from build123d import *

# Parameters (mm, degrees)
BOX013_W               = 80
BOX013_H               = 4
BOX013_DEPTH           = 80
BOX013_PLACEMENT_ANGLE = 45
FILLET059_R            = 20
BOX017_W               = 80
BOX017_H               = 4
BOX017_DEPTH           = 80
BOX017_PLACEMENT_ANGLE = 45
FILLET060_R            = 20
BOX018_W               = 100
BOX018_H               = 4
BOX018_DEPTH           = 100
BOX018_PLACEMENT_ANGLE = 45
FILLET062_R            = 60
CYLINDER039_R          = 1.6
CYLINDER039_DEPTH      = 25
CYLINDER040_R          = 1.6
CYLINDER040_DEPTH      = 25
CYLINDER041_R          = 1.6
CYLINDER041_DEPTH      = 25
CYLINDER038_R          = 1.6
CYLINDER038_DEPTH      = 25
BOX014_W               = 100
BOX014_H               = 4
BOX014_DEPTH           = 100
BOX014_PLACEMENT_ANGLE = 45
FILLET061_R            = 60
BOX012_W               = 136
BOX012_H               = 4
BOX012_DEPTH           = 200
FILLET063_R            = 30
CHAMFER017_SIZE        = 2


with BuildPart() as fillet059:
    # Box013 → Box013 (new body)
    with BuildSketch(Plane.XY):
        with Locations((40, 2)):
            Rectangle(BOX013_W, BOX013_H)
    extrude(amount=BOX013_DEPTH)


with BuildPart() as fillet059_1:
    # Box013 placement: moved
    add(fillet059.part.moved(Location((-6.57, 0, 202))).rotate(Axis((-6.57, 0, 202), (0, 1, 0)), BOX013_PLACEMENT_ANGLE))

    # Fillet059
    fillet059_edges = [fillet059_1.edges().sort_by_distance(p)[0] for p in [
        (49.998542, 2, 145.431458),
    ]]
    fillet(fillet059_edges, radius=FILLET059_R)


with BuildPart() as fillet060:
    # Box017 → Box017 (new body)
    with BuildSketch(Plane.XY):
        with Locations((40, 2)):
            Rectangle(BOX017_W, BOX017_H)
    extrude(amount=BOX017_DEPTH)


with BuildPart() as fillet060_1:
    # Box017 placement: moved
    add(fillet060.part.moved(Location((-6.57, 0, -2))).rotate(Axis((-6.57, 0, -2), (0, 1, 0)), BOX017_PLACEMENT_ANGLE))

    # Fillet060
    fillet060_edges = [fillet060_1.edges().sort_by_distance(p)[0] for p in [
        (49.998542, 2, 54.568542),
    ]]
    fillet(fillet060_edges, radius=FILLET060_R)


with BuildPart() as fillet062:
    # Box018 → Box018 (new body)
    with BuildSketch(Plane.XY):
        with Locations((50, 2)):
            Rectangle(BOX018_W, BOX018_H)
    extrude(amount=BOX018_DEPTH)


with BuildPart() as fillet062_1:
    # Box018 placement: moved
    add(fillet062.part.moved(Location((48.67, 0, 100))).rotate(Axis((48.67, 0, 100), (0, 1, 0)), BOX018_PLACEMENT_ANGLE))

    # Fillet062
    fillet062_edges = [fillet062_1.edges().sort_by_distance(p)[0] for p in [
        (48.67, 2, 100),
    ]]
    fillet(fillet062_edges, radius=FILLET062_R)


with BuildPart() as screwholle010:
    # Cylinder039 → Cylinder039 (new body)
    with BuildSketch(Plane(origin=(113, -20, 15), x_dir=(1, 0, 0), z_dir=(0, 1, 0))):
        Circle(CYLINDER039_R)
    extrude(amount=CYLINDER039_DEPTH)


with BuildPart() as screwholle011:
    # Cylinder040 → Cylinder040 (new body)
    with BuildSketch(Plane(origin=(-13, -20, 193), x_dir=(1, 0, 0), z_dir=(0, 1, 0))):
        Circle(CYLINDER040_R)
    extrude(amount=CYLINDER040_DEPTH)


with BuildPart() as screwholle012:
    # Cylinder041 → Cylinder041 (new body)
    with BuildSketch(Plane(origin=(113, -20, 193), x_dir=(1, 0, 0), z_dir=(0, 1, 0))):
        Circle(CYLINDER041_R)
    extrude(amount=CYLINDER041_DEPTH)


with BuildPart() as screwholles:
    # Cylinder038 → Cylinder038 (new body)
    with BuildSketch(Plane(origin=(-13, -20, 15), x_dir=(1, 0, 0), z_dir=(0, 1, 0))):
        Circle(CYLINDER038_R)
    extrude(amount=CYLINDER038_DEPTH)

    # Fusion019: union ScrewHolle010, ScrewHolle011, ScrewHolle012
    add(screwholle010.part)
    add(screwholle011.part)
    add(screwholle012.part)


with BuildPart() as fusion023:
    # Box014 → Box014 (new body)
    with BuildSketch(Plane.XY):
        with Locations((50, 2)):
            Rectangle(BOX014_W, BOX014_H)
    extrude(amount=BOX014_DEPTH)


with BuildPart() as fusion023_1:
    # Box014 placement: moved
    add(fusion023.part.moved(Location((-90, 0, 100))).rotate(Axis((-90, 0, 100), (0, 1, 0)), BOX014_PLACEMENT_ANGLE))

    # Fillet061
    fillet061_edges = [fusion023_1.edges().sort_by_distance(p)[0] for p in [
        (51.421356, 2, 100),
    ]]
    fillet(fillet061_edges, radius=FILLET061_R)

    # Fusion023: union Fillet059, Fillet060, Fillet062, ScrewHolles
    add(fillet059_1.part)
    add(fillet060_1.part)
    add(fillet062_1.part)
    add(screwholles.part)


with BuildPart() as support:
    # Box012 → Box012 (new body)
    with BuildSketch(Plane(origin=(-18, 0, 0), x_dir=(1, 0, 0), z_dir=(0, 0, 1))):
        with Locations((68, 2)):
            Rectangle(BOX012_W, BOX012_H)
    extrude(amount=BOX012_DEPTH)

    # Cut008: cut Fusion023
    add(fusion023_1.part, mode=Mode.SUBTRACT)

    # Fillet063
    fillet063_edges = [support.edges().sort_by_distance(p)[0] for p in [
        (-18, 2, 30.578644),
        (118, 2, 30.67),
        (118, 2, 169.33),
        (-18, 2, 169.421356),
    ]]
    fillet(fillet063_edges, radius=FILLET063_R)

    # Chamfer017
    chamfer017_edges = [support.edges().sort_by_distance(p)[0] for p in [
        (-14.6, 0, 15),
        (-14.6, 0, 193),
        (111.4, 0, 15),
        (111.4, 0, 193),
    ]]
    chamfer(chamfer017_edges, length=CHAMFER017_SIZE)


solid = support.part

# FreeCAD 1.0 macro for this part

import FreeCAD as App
import Part
import Sketcher

V = App.Vector
Q = App.Units.Quantity


def edges_at(feature, points):
    """Names of the edges that pass closest to the given points."""
    edges = feature.Shape.Edges
    near = lambda p: min(range(len(edges)), key=lambda i: edges[i].distToShape(Part.Vertex(*p))[0])
    return sorted({f"Edge{near(p) + 1}" for p in points})


def add_polygon(sketch, points):
    """Adds a closed chain of lines whose ends are joined by coincident constraints."""
    first, n = sketch.GeometryCount, len(points)
    for a, b in zip(points, points[1:] + points[:1]):
        sketch.addGeometry(Part.LineSegment(App.Vector(*a, 0), App.Vector(*b, 0)), False)
    for i in range(n):
        sketch.addConstraint(Sketcher.Constraint("Coincident", first + i, 2, first + (i + 1) % n, 1))

doc = App.newDocument("Part")
params = doc.addObject("Spreadsheet::Sheet", "Params")
for row, (alias, value) in enumerate([
    ("sketch1_width", "80 mm"),
    ("sketch1_height", "4 mm"),
    ("pad1_length", "80 mm"),
    ("fillet_radius", "20 mm"),
    ("sketch2_width", "80 mm"),
    ("sketch2_height", "4 mm"),
    ("pad2_length", "80 mm"),
    ("fillet2_radius", "20 mm"),
    ("sketch3_width", "100 mm"),
    ("sketch3_height", "4 mm"),
    ("pad3_length", "100 mm"),
    ("fillet3_radius", "60 mm"),
    ("sketch4_diameter", "3.2 mm"),
    ("pad4_length", "25 mm"),
    ("sketch5_diameter", "3.2 mm"),
    ("pad5_length", "25 mm"),
    ("sketch6_diameter", "3.2 mm"),
    ("pad6_length", "25 mm"),
    ("sketch7_diameter", "3.2 mm"),
    ("pad7_length", "25 mm"),
    ("sketch8_width", "100 mm"),
    ("sketch8_height", "4 mm"),
    ("pad8_length", "100 mm"),
    ("fillet4_radius", "60 mm"),
    ("sketch9_width", "136 mm"),
    ("sketch9_height", "4 mm"),
    ("pad9_length", "200 mm"),
    ("fillet5_radius", "30 mm"),
    ("chamfer_size", "2 mm"),
], start=1):
    params.set(f"A{row}", alias)
    params.set(f"B{row}", "=" + value)
    params.setAlias(f"B{row}", alias)

body = doc.addObject("PartDesign::Body", "Body")

# Sketch on XY plane
sketch1 = doc.addObject("Sketcher::SketchObject", "Sketch")
body.addObject(sketch1)
sketch1.AttachmentSupport = (doc.XY_Plane, [""])
sketch1.MapMode = "FlatFace"
add_polygon(sketch1, [(0, 4), (0, 0), (80, 0), (80, 4)])  # lines 0-3
sketch1.addConstraint(Sketcher.Constraint("Vertical", 0))
sketch1.addConstraint(Sketcher.Constraint("Horizontal", 1))
sketch1.addConstraint(Sketcher.Constraint("Vertical", 2))
sketch1.addConstraint(Sketcher.Constraint("Horizontal", 3))
sketch1.addConstraint(Sketcher.Constraint("Coincident", 0, 2, -1, 1))
sketch1.addConstraint(Sketcher.Constraint("DistanceX", 1, 1, 1, 2, Q("80 mm")))
sketch1.addConstraint(Sketcher.Constraint("DistanceY", 0, 2, 0, 1, Q("4 mm")))
sketch1.setExpression("Constraints[9]", "Params.sketch1_width")
sketch1.setExpression("Constraints[10]", "Params.sketch1_height")
pad1 = doc.addObject("PartDesign::Pad", "Pad")
body.addObject(pad1)
pad1.Profile = sketch1
pad1.setExpression("Length", "Params.pad1_length")
body2 = doc.addObject("PartDesign::Body", "Body001")
doc.recompute()

body.Placement = App.Placement(V(-6.57, 0, 202), App.Rotation(V(0, 1, 0), 45))
boolean = doc.addObject("PartDesign::Boolean", "Boolean")
body2.addObject(boolean)
boolean.Type = "Fuse"
boolean.addObjects([body])
doc.recompute()

fillet = doc.addObject("PartDesign::Fillet", "Fillet")
body2.addObject(fillet)
fillet.Base = (boolean, edges_at(boolean, [(49.999, 2, 145.431)]))
fillet.setExpression("Radius", "Params.fillet_radius")
body3 = doc.addObject("PartDesign::Body", "Body002")

# Sketch on XY plane
sketch2 = doc.addObject("Sketcher::SketchObject", "Sketch001")
body3.addObject(sketch2)
sketch2.AttachmentSupport = (doc.getObject("XY_Plane002"), [""])
sketch2.MapMode = "FlatFace"
add_polygon(sketch2, [(0, 4), (0, 0), (80, 0), (80, 4)])  # lines 0-3
sketch2.addConstraint(Sketcher.Constraint("Vertical", 0))
sketch2.addConstraint(Sketcher.Constraint("Horizontal", 1))
sketch2.addConstraint(Sketcher.Constraint("Vertical", 2))
sketch2.addConstraint(Sketcher.Constraint("Horizontal", 3))
sketch2.addConstraint(Sketcher.Constraint("Coincident", 0, 2, -1, 1))
sketch2.addConstraint(Sketcher.Constraint("DistanceX", 1, 1, 1, 2, Q("80 mm")))
sketch2.addConstraint(Sketcher.Constraint("DistanceY", 0, 2, 0, 1, Q("4 mm")))
sketch2.setExpression("Constraints[9]", "Params.sketch2_width")
sketch2.setExpression("Constraints[10]", "Params.sketch2_height")
pad2 = doc.addObject("PartDesign::Pad", "Pad001")
body3.addObject(pad2)
pad2.Profile = sketch2
pad2.setExpression("Length", "Params.pad2_length")
body4 = doc.addObject("PartDesign::Body", "Body003")
doc.recompute()

body3.Placement = App.Placement(V(-6.57, 0, -2), App.Rotation(V(0, 1, 0), 45))
boolean2 = doc.addObject("PartDesign::Boolean", "Boolean001")
body4.addObject(boolean2)
boolean2.Type = "Fuse"
boolean2.addObjects([body3])
doc.recompute()

fillet2 = doc.addObject("PartDesign::Fillet", "Fillet001")
body4.addObject(fillet2)
fillet2.Base = (boolean2, edges_at(boolean2, [(49.999, 2, 54.569)]))
fillet2.setExpression("Radius", "Params.fillet2_radius")
body5 = doc.addObject("PartDesign::Body", "Body004")

# Sketch on XY plane
sketch3 = doc.addObject("Sketcher::SketchObject", "Sketch002")
body5.addObject(sketch3)
sketch3.AttachmentSupport = (doc.getObject("XY_Plane004"), [""])
sketch3.MapMode = "FlatFace"
add_polygon(sketch3, [(0, 4), (0, 0), (100, 0), (100, 4)])  # lines 0-3
sketch3.addConstraint(Sketcher.Constraint("Vertical", 0))
sketch3.addConstraint(Sketcher.Constraint("Horizontal", 1))
sketch3.addConstraint(Sketcher.Constraint("Vertical", 2))
sketch3.addConstraint(Sketcher.Constraint("Horizontal", 3))
sketch3.addConstraint(Sketcher.Constraint("Coincident", 0, 2, -1, 1))
sketch3.addConstraint(Sketcher.Constraint("DistanceX", 1, 1, 1, 2, Q("100 mm")))
sketch3.addConstraint(Sketcher.Constraint("DistanceY", 0, 2, 0, 1, Q("4 mm")))
sketch3.setExpression("Constraints[9]", "Params.sketch3_width")
sketch3.setExpression("Constraints[10]", "Params.sketch3_height")
pad3 = doc.addObject("PartDesign::Pad", "Pad002")
body5.addObject(pad3)
pad3.Profile = sketch3
pad3.setExpression("Length", "Params.pad3_length")
body6 = doc.addObject("PartDesign::Body", "Body005")
doc.recompute()

body5.Placement = App.Placement(V(48.67, 0, 100), App.Rotation(V(0, 1, 0), 45))
boolean3 = doc.addObject("PartDesign::Boolean", "Boolean002")
body6.addObject(boolean3)
boolean3.Type = "Fuse"
boolean3.addObjects([body5])
doc.recompute()

fillet3 = doc.addObject("PartDesign::Fillet", "Fillet002")
body6.addObject(fillet3)
fillet3.Base = (boolean3, edges_at(boolean3, [(48.67, 2, 100)]))
fillet3.setExpression("Radius", "Params.fillet3_radius")
body7 = doc.addObject("PartDesign::Body", "Body006")

# Sketch on XZ plane
sketch4 = doc.addObject("Sketcher::SketchObject", "Sketch003")
body7.addObject(sketch4)
sketch4.AttachmentSupport = (doc.getObject("XZ_Plane006"), [""])
sketch4.MapMode = "FlatFace"
sketch4.AttachmentOffset = App.Placement(V(0, 0, 20), App.Rotation())
sketch4.addGeometry(Part.Circle(V(113, 15, 0), V(0, 0, 1), 1.6), False)
sketch4.addConstraint(Sketcher.Constraint("Diameter", 0, Q("3.2 mm")))
sketch4.addConstraint(Sketcher.Constraint("DistanceX", -1, 1, 0, 3, Q("113 mm")))
sketch4.addConstraint(Sketcher.Constraint("DistanceY", -1, 1, 0, 3, Q("15 mm")))
sketch4.setExpression("Constraints[0]", "Params.sketch4_diameter")
pad4 = doc.addObject("PartDesign::Pad", "Pad003")
body7.addObject(pad4)
pad4.Profile = sketch4
pad4.setExpression("Length", "Params.pad4_length")
pad4.Reversed = True
body8 = doc.addObject("PartDesign::Body", "Body007")

# Sketch on XZ plane
sketch5 = doc.addObject("Sketcher::SketchObject", "Sketch004")
body8.addObject(sketch5)
sketch5.AttachmentSupport = (doc.getObject("XZ_Plane007"), [""])
sketch5.MapMode = "FlatFace"
sketch5.AttachmentOffset = App.Placement(V(0, 0, 20), App.Rotation())
sketch5.addGeometry(Part.Circle(V(-13, 193, 0), V(0, 0, 1), 1.6), False)
sketch5.addConstraint(Sketcher.Constraint("Diameter", 0, Q("3.2 mm")))
sketch5.addConstraint(Sketcher.Constraint("DistanceX", 0, 3, -1, 1, Q("13 mm")))
sketch5.addConstraint(Sketcher.Constraint("DistanceY", -1, 1, 0, 3, Q("193 mm")))
sketch5.setExpression("Constraints[0]", "Params.sketch5_diameter")
pad5 = doc.addObject("PartDesign::Pad", "Pad004")
body8.addObject(pad5)
pad5.Profile = sketch5
pad5.setExpression("Length", "Params.pad5_length")
pad5.Reversed = True
body9 = doc.addObject("PartDesign::Body", "Body008")

# Sketch on XZ plane
sketch6 = doc.addObject("Sketcher::SketchObject", "Sketch005")
body9.addObject(sketch6)
sketch6.AttachmentSupport = (doc.getObject("XZ_Plane008"), [""])
sketch6.MapMode = "FlatFace"
sketch6.AttachmentOffset = App.Placement(V(0, 0, 20), App.Rotation())
sketch6.addGeometry(Part.Circle(V(113, 193, 0), V(0, 0, 1), 1.6), False)
sketch6.addConstraint(Sketcher.Constraint("Diameter", 0, Q("3.2 mm")))
sketch6.addConstraint(Sketcher.Constraint("DistanceX", -1, 1, 0, 3, Q("113 mm")))
sketch6.addConstraint(Sketcher.Constraint("DistanceY", -1, 1, 0, 3, Q("193 mm")))
sketch6.setExpression("Constraints[0]", "Params.sketch6_diameter")
pad6 = doc.addObject("PartDesign::Pad", "Pad005")
body9.addObject(pad6)
pad6.Profile = sketch6
pad6.setExpression("Length", "Params.pad6_length")
pad6.Reversed = True
body10 = doc.addObject("PartDesign::Body", "Body009")
body10.AllowCompound = True

# Sketch on XZ plane
sketch7 = doc.addObject("Sketcher::SketchObject", "Sketch006")
body10.addObject(sketch7)
sketch7.AttachmentSupport = (doc.getObject("XZ_Plane009"), [""])
sketch7.MapMode = "FlatFace"
sketch7.AttachmentOffset = App.Placement(V(0, 0, 20), App.Rotation())
sketch7.addGeometry(Part.Circle(V(-13, 15, 0), V(0, 0, 1), 1.6), False)
sketch7.addConstraint(Sketcher.Constraint("Diameter", 0, Q("3.2 mm")))
sketch7.addConstraint(Sketcher.Constraint("DistanceX", 0, 3, -1, 1, Q("13 mm")))
sketch7.addConstraint(Sketcher.Constraint("DistanceY", -1, 1, 0, 3, Q("15 mm")))
sketch7.setExpression("Constraints[0]", "Params.sketch7_diameter")
pad7 = doc.addObject("PartDesign::Pad", "Pad006")
body10.addObject(pad7)
pad7.Profile = sketch7
pad7.setExpression("Length", "Params.pad7_length")
pad7.Reversed = True
doc.recompute()

boolean4 = doc.addObject("PartDesign::Boolean", "Boolean003")
body10.addObject(boolean4)
boolean4.Type = "Fuse"
boolean4.addObjects([body7])
doc.recompute()

boolean5 = doc.addObject("PartDesign::Boolean", "Boolean004")
body10.addObject(boolean5)
boolean5.Type = "Fuse"
boolean5.addObjects([body8])
doc.recompute()

boolean6 = doc.addObject("PartDesign::Boolean", "Boolean005")
body10.addObject(boolean6)
boolean6.Type = "Fuse"
boolean6.addObjects([body9])
body11 = doc.addObject("PartDesign::Body", "Body010")

# Sketch on XY plane
sketch8 = doc.addObject("Sketcher::SketchObject", "Sketch007")
body11.addObject(sketch8)
sketch8.AttachmentSupport = (doc.getObject("XY_Plane010"), [""])
sketch8.MapMode = "FlatFace"
add_polygon(sketch8, [(0, 4), (0, 0), (100, 0), (100, 4)])  # lines 0-3
sketch8.addConstraint(Sketcher.Constraint("Vertical", 0))
sketch8.addConstraint(Sketcher.Constraint("Horizontal", 1))
sketch8.addConstraint(Sketcher.Constraint("Vertical", 2))
sketch8.addConstraint(Sketcher.Constraint("Horizontal", 3))
sketch8.addConstraint(Sketcher.Constraint("Coincident", 0, 2, -1, 1))
sketch8.addConstraint(Sketcher.Constraint("DistanceX", 1, 1, 1, 2, Q("100 mm")))
sketch8.addConstraint(Sketcher.Constraint("DistanceY", 0, 2, 0, 1, Q("4 mm")))
sketch8.setExpression("Constraints[9]", "Params.sketch8_width")
sketch8.setExpression("Constraints[10]", "Params.sketch8_height")
pad8 = doc.addObject("PartDesign::Pad", "Pad007")
body11.addObject(pad8)
pad8.Profile = sketch8
pad8.setExpression("Length", "Params.pad8_length")
body12 = doc.addObject("PartDesign::Body", "Body011")
body12.AllowCompound = True
doc.recompute()

body11.Placement = App.Placement(V(-90, 0, 100), App.Rotation(V(0, 1, 0), 45))
boolean7 = doc.addObject("PartDesign::Boolean", "Boolean006")
body12.addObject(boolean7)
boolean7.Type = "Fuse"
boolean7.addObjects([body11])
doc.recompute()

fillet4 = doc.addObject("PartDesign::Fillet", "Fillet003")
body12.addObject(fillet4)
fillet4.Base = (boolean7, edges_at(boolean7, [(51.421, 2, 100)]))
fillet4.setExpression("Radius", "Params.fillet4_radius")
doc.recompute()

boolean8 = doc.addObject("PartDesign::Boolean", "Boolean007")
body12.addObject(boolean8)
boolean8.Type = "Fuse"
boolean8.addObjects([body2])
doc.recompute()

boolean9 = doc.addObject("PartDesign::Boolean", "Boolean008")
body12.addObject(boolean9)
boolean9.Type = "Fuse"
boolean9.addObjects([body4])
doc.recompute()

boolean10 = doc.addObject("PartDesign::Boolean", "Boolean009")
body12.addObject(boolean10)
boolean10.Type = "Fuse"
boolean10.addObjects([body6])
doc.recompute()

boolean11 = doc.addObject("PartDesign::Boolean", "Boolean010")
body12.addObject(boolean11)
boolean11.Type = "Fuse"
boolean11.addObjects([body10])
body13 = doc.addObject("PartDesign::Body", "Body012")

# Sketch on XY plane
sketch9 = doc.addObject("Sketcher::SketchObject", "Sketch008")
body13.addObject(sketch9)
sketch9.AttachmentSupport = (doc.getObject("XY_Plane012"), [""])
sketch9.MapMode = "FlatFace"
add_polygon(sketch9, [(-18, 4), (-18, 0), (118, 0), (118, 4)])  # lines 0-3
sketch9.addConstraint(Sketcher.Constraint("Vertical", 0))
sketch9.addConstraint(Sketcher.Constraint("Horizontal", 1))
sketch9.addConstraint(Sketcher.Constraint("Vertical", 2))
sketch9.addConstraint(Sketcher.Constraint("Horizontal", 3))
sketch9.addConstraint(Sketcher.Constraint("PointOnObject", 0, 2, -1))
sketch9.addConstraint(Sketcher.Constraint("DistanceX", 1, 1, 1, 2, Q("136 mm")))
sketch9.addConstraint(Sketcher.Constraint("DistanceY", 0, 2, 0, 1, Q("4 mm")))
sketch9.addConstraint(Sketcher.Constraint("DistanceX", 0, 2, -1, 1, Q("18 mm")))
sketch9.setExpression("Constraints[9]", "Params.sketch9_width")
sketch9.setExpression("Constraints[10]", "Params.sketch9_height")
pad9 = doc.addObject("PartDesign::Pad", "Pad008")
body13.addObject(pad9)
pad9.Profile = sketch9
pad9.setExpression("Length", "Params.pad9_length")
doc.recompute()

boolean12 = doc.addObject("PartDesign::Boolean", "Boolean011")
body13.addObject(boolean12)
boolean12.Type = "Cut"
boolean12.addObjects([body12])
doc.recompute()

fillet5 = doc.addObject("PartDesign::Fillet", "Fillet004")
body13.addObject(fillet5)
fillet5.Base = (boolean12, edges_at(boolean12, [
    (-18, 2, 30.579),
    (118, 2, 30.67),
    (118, 2, 169.33),
    (-18, 2, 169.421),
]))
fillet5.setExpression("Radius", "Params.fillet5_radius")
doc.recompute()

chamfer = doc.addObject("PartDesign::Chamfer", "Chamfer")
body13.addObject(chamfer)
chamfer.Base = (fillet5, edges_at(fillet5, [
    (-14.6, 0, 15),
    (-14.6, 0, 193),
    (111.4, 0, 15),
    (111.4, 0, 193),
]))
chamfer.setExpression("Size", "Params.chamfer_size")

doc.recompute()
